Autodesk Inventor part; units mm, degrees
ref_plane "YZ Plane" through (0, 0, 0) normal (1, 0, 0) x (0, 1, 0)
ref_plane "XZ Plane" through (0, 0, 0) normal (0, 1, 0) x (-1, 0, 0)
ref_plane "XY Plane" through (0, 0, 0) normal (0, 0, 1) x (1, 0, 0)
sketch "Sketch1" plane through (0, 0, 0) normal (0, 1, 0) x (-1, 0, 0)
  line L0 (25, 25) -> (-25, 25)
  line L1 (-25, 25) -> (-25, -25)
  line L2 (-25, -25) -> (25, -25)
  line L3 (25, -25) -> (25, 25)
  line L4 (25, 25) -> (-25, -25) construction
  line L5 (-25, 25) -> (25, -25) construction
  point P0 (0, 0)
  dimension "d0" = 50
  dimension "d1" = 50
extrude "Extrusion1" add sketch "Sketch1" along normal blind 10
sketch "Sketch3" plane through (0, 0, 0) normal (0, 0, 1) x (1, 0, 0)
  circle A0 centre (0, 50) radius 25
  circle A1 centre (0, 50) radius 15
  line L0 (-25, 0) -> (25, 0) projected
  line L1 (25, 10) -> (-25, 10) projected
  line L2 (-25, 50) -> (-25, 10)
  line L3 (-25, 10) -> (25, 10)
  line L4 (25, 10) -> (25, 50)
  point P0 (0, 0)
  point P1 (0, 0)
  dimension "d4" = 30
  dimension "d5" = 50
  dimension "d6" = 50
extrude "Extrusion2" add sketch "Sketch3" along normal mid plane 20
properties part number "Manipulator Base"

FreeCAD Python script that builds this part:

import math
import FreeCAD as App
import Part
import Sketcher
from FreeCAD import Vector
Q = App.Units.Quantity

doc = App.newDocument("Part")
body = doc.addObject("PartDesign::Body", "Body")

# Sketch on XZ plane
sketch1 = doc.addObject("Sketcher::SketchObject", "Sketch")
body.addObject(sketch1)
sketch1.AttachmentSupport = (doc.XZ_Plane, [""])
sketch1.MapMode = "FlatFace"
sketch1.addGeometry([
    Part.LineSegment(Vector(-25, -25, 0), Vector(-25, 25, 0)),
    Part.LineSegment(Vector(-25, 25, 0), Vector(25, 25, 0)),
    Part.LineSegment(Vector(25, 25, 0), Vector(25, -25, 0)),
    Part.LineSegment(Vector(25, -25, 0), Vector(-25, -25, 0)),
], False)
sketch1.addConstraint([
    Sketcher.Constraint("Coincident", 0, 2, 1, 1),
    Sketcher.Constraint("Coincident", 1, 2, 2, 1),
    Sketcher.Constraint("Coincident", 2, 2, 3, 1),
    Sketcher.Constraint("Coincident", 3, 2, 0, 1),
    Sketcher.Constraint("Vertical", 0),
    Sketcher.Constraint("Horizontal", 1),
    Sketcher.Constraint("Vertical", 2),
    Sketcher.Constraint("Horizontal", 3),
    Sketcher.Constraint("Symmetric", 0, 2, 2, 2, -1, 1),
    Sketcher.Constraint("Equal", 3, 0),
    Sketcher.Constraint("DistanceX", 1, 1, 1, 2, Q("50 mm")),
])
pad1 = doc.addObject("PartDesign::Pad", "Pad")
body.addObject(pad1)
pad1.Profile = sketch1
pad1.Length = 10
pad1.Reversed = True

# Sketch on XY plane
sketch2 = doc.addObject("Sketcher::SketchObject", "Sketch001")
body.addObject(sketch2)
sketch2.AttachmentSupport = (doc.XY_Plane, [""])
sketch2.MapMode = "FlatFace"
sketch2.addGeometry([
    Part.ArcOfCircle(Part.Circle(Vector(0, 50, 0), Vector(0, 0, 1), 25), math.radians(0), math.radians(180)),  # 0
    Part.LineSegment(Vector(-25, 50, 0), Vector(-25, 10, 0)),  # 1
    Part.LineSegment(Vector(-25, 10, 0), Vector(25, 10, 0)),  # 2
    Part.LineSegment(Vector(25, 10, 0), Vector(25, 50, 0)),  # 3
    Part.Circle(Vector(0, 50, 0), Vector(0, 0, 1), 15),  # 4
], False)
sketch2.addConstraint([
    Sketcher.Constraint("Tangent", 0, 2, 1, 1),
    Sketcher.Constraint("Coincident", 1, 2, 2, 1),
    Sketcher.Constraint("Coincident", 2, 2, 3, 1),
    Sketcher.Constraint("Tangent", 3, 2, 0, 1),
    Sketcher.Constraint("Vertical", 1),
    Sketcher.Constraint("Horizontal", 2),
    Sketcher.Constraint("Vertical", 3),
    Sketcher.Constraint("Coincident", 4, 3, 0, 3),
    Sketcher.Constraint("PointOnObject", 0, 3, -2),
    Sketcher.Constraint("Diameter", 4, Q("30 mm")),
    Sketcher.Constraint("Radius", 0, Q("25 mm")),
    Sketcher.Constraint("DistanceY", -1, 1, 0, 3, Q("50 mm")),
    Sketcher.Constraint("DistanceY", 1, 2, 1, 1, Q("40 mm")),
])
pad2 = doc.addObject("PartDesign::Pad", "Pad001")
body.addObject(pad2)
pad2.Profile = sketch2
pad2.Length = 20
pad2.Midplane = True

doc.recompute()
